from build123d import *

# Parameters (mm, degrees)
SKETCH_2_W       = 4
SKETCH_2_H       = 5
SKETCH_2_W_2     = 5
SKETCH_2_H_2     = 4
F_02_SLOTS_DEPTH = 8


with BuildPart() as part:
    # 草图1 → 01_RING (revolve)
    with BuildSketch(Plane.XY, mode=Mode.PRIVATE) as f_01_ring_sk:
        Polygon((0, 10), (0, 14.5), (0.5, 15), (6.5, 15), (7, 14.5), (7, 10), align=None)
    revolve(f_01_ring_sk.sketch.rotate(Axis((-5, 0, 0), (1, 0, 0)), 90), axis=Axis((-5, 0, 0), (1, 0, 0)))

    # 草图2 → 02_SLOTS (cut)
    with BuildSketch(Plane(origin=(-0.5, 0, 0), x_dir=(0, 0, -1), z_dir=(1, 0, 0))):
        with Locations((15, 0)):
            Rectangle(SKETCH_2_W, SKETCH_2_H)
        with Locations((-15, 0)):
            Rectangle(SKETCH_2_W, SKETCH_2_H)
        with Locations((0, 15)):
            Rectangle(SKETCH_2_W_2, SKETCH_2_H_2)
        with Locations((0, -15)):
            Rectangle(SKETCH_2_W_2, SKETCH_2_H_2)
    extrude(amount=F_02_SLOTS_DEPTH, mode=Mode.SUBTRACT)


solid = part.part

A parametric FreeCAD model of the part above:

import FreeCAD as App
import Part
import Sketcher

V = App.Vector

doc = App.newDocument("Part")
body = doc.addObject("PartDesign::Body", "Body")

# Sketch on XY plane
sketch1 = body.newObject("Sketcher::SketchObject", "Sketch")
sketch1.AttachmentSupport = (doc.getObject("XY_Plane"), [""])
sketch1.MapMode = "FlatFace"
sketch1.addGeometry(Part.LineSegment(V(0, 14.5, 0), V(0, 10, 0)), False)
sketch1.addGeometry(Part.LineSegment(V(0, 10, 0), V(7, 10, 0)), False)
sketch1.addGeometry(Part.LineSegment(V(7, 10, 0), V(7, 14.5, 0)), False)
sketch1.addGeometry(Part.LineSegment(V(7, 14.5, 0), V(6.5, 15, 0)), False)
sketch1.addGeometry(Part.LineSegment(V(6.5, 15, 0), V(0.5, 15, 0)), False)
sketch1.addGeometry(Part.LineSegment(V(0.5, 15, 0), V(0, 14.5, 0)), False)
sketch1.addConstraint(Sketcher.Constraint("Coincident", 0, 2, 1, 1))
sketch1.addConstraint(Sketcher.Constraint("Coincident", 1, 2, 2, 1))
sketch1.addConstraint(Sketcher.Constraint("Coincident", 2, 2, 3, 1))
sketch1.addConstraint(Sketcher.Constraint("Coincident", 3, 2, 4, 1))
sketch1.addConstraint(Sketcher.Constraint("Coincident", 4, 2, 5, 1))
sketch1.addConstraint(Sketcher.Constraint("Coincident", 5, 2, 0, 1))
sketch1.addConstraint(Sketcher.Constraint("Vertical", 0))
sketch1.addConstraint(Sketcher.Constraint("Horizontal", 1))
sketch1.addConstraint(Sketcher.Constraint("Vertical", 2))
sketch1.addConstraint(Sketcher.Constraint("Horizontal", 4))
sketch1.addConstraint(Sketcher.Constraint("PointOnObject", 0, 2, -2))
sketch1.addConstraint(Sketcher.Constraint("Perpendicular", 3, 5))
sketch1.addConstraint(Sketcher.Constraint("Horizontal", 2, 2, 5, 2))
sketch1.addConstraint(Sketcher.Constraint("Equal", 3, 5))
sketch1.addConstraint(Sketcher.Constraint("DistanceX", 1, 1, 1, 2, 7.0))
sketch1.addConstraint(Sketcher.Constraint("DistanceX", 4, 2, 4, 1, 6.0))
sketch1.addConstraint(Sketcher.Constraint("DistanceY", 0, 2, 0, 1, 4.5))
sketch1.addConstraint(Sketcher.Constraint("DistanceY", -1, 1, 0, 2, 10.0))
revolution = body.newObject("PartDesign::Revolution", "Revolution")
revolution.Profile = sketch1
revolution.ReferenceAxis = (sketch1, ["H_Axis"])
revolution.Angle = 360

# Sketch on YZ plane
sketch2 = body.newObject("Sketcher::SketchObject", "Sketch001")
sketch2.AttachmentSupport = (doc.getObject("YZ_Plane"), [""])
sketch2.MapMode = "FlatFace"
sketch2.AttachmentOffset = App.Placement(V(0, 0, -0.5), App.Rotation())
sketch2.addGeometry(Part.LineSegment(V(2.5, -13, 0), V(-2.5, -13, 0)), False)
sketch2.addGeometry(Part.LineSegment(V(-2.5, -13, 0), V(-2.5, -17, 0)), False)
sketch2.addGeometry(Part.LineSegment(V(-2.5, -17, 0), V(2.5, -17, 0)), False)
sketch2.addGeometry(Part.LineSegment(V(2.5, -17, 0), V(2.5, -13, 0)), False)
sketch2.addGeometry(Part.LineSegment(V(2.5, 17, 0), V(-2.5, 17, 0)), False)
sketch2.addGeometry(Part.LineSegment(V(-2.5, 17, 0), V(-2.5, 13, 0)), False)
sketch2.addGeometry(Part.LineSegment(V(-2.5, 13, 0), V(2.5, 13, 0)), False)
sketch2.addGeometry(Part.LineSegment(V(2.5, 13, 0), V(2.5, 17, 0)), False)
sketch2.addGeometry(Part.LineSegment(V(17, 2.5, 0), V(13, 2.5, 0)), False)
sketch2.addGeometry(Part.LineSegment(V(13, 2.5, 0), V(13, -2.5, 0)), False)
sketch2.addGeometry(Part.LineSegment(V(13, -2.5, 0), V(17, -2.5, 0)), False)
sketch2.addGeometry(Part.LineSegment(V(17, -2.5, 0), V(17, 2.5, 0)), False)
sketch2.addGeometry(Part.LineSegment(V(-13, 2.5, 0), V(-17, 2.5, 0)), False)
sketch2.addGeometry(Part.LineSegment(V(-17, 2.5, 0), V(-17, -2.5, 0)), False)
sketch2.addGeometry(Part.LineSegment(V(-17, -2.5, 0), V(-13, -2.5, 0)), False)
sketch2.addGeometry(Part.LineSegment(V(-13, -2.5, 0), V(-13, 2.5, 0)), False)
sketch2.addConstraint(Sketcher.Constraint("Coincident", 0, 2, 1, 1))
sketch2.addConstraint(Sketcher.Constraint("Coincident", 1, 2, 2, 1))
sketch2.addConstraint(Sketcher.Constraint("Coincident", 2, 2, 3, 1))
sketch2.addConstraint(Sketcher.Constraint("Coincident", 3, 2, 0, 1))
sketch2.addConstraint(Sketcher.Constraint("Coincident", 4, 2, 5, 1))
sketch2.addConstraint(Sketcher.Constraint("Coincident", 5, 2, 6, 1))
sketch2.addConstraint(Sketcher.Constraint("Coincident", 6, 2, 7, 1))
sketch2.addConstraint(Sketcher.Constraint("Coincident", 7, 2, 4, 1))
sketch2.addConstraint(Sketcher.Constraint("Coincident", 8, 2, 9, 1))
sketch2.addConstraint(Sketcher.Constraint("Coincident", 9, 2, 10, 1))
sketch2.addConstraint(Sketcher.Constraint("Coincident", 10, 2, 11, 1))
sketch2.addConstraint(Sketcher.Constraint("Coincident", 11, 2, 8, 1))
sketch2.addConstraint(Sketcher.Constraint("Coincident", 12, 2, 13, 1))
sketch2.addConstraint(Sketcher.Constraint("Coincident", 13, 2, 14, 1))
sketch2.addConstraint(Sketcher.Constraint("Coincident", 14, 2, 15, 1))
sketch2.addConstraint(Sketcher.Constraint("Coincident", 15, 2, 12, 1))
sketch2.addConstraint(Sketcher.Constraint("Horizontal", 0))
sketch2.addConstraint(Sketcher.Constraint("Vertical", 1))
sketch2.addConstraint(Sketcher.Constraint("Horizontal", 2))
sketch2.addConstraint(Sketcher.Constraint("Vertical", 3))
sketch2.addConstraint(Sketcher.Constraint("Horizontal", 4))
sketch2.addConstraint(Sketcher.Constraint("Vertical", 5))
sketch2.addConstraint(Sketcher.Constraint("Horizontal", 6))
sketch2.addConstraint(Sketcher.Constraint("Vertical", 7))
sketch2.addConstraint(Sketcher.Constraint("Horizontal", 8))
sketch2.addConstraint(Sketcher.Constraint("Vertical", 9))
sketch2.addConstraint(Sketcher.Constraint("Horizontal", 10))
sketch2.addConstraint(Sketcher.Constraint("Vertical", 11))
sketch2.addConstraint(Sketcher.Constraint("Horizontal", 12))
sketch2.addConstraint(Sketcher.Constraint("Vertical", 13))
sketch2.addConstraint(Sketcher.Constraint("Horizontal", 14))
sketch2.addConstraint(Sketcher.Constraint("Vertical", 15))
sketch2.addConstraint(Sketcher.Constraint("Symmetric", 2, 2, 4, 2, -1, 1))
sketch2.addConstraint(Sketcher.Constraint("Symmetric", 0, 2, 6, 2, -1, 1))
sketch2.addConstraint(Sketcher.Constraint("Symmetric", 10, 2, 12, 2, -1, 1))
sketch2.addConstraint(Sketcher.Constraint("Symmetric", 8, 2, 14, 2, -1, 1))
sketch2.addConstraint(Sketcher.Constraint("Horizontal", 11, 2, 12, 2))
sketch2.addConstraint(Sketcher.Constraint("Vertical", 1, 2, 4, 2))
sketch2.addConstraint(Sketcher.Constraint("Equal", 14, 1))
sketch2.addConstraint(Sketcher.Constraint("Equal", 6, 9))
sketch2.addConstraint(Sketcher.Constraint("DistanceX", 0, 2, 0, 1, 5.0))
sketch2.addConstraint(Sketcher.Constraint("DistanceX", 8, 2, 8, 1, 4.0))
sketch2.addConstraint(Sketcher.Constraint("DistanceY", 0, 2, -1, 1, 13.0))
sketch2.addConstraint(Sketcher.Constraint("DistanceX", -1, 1, 8, 2, 13.0))
pocket1 = body.newObject("PartDesign::Pocket", "Pocket")
pocket1.Profile = sketch2
pocket1.Length = 8
pocket1.Reversed = True

doc.recompute()
